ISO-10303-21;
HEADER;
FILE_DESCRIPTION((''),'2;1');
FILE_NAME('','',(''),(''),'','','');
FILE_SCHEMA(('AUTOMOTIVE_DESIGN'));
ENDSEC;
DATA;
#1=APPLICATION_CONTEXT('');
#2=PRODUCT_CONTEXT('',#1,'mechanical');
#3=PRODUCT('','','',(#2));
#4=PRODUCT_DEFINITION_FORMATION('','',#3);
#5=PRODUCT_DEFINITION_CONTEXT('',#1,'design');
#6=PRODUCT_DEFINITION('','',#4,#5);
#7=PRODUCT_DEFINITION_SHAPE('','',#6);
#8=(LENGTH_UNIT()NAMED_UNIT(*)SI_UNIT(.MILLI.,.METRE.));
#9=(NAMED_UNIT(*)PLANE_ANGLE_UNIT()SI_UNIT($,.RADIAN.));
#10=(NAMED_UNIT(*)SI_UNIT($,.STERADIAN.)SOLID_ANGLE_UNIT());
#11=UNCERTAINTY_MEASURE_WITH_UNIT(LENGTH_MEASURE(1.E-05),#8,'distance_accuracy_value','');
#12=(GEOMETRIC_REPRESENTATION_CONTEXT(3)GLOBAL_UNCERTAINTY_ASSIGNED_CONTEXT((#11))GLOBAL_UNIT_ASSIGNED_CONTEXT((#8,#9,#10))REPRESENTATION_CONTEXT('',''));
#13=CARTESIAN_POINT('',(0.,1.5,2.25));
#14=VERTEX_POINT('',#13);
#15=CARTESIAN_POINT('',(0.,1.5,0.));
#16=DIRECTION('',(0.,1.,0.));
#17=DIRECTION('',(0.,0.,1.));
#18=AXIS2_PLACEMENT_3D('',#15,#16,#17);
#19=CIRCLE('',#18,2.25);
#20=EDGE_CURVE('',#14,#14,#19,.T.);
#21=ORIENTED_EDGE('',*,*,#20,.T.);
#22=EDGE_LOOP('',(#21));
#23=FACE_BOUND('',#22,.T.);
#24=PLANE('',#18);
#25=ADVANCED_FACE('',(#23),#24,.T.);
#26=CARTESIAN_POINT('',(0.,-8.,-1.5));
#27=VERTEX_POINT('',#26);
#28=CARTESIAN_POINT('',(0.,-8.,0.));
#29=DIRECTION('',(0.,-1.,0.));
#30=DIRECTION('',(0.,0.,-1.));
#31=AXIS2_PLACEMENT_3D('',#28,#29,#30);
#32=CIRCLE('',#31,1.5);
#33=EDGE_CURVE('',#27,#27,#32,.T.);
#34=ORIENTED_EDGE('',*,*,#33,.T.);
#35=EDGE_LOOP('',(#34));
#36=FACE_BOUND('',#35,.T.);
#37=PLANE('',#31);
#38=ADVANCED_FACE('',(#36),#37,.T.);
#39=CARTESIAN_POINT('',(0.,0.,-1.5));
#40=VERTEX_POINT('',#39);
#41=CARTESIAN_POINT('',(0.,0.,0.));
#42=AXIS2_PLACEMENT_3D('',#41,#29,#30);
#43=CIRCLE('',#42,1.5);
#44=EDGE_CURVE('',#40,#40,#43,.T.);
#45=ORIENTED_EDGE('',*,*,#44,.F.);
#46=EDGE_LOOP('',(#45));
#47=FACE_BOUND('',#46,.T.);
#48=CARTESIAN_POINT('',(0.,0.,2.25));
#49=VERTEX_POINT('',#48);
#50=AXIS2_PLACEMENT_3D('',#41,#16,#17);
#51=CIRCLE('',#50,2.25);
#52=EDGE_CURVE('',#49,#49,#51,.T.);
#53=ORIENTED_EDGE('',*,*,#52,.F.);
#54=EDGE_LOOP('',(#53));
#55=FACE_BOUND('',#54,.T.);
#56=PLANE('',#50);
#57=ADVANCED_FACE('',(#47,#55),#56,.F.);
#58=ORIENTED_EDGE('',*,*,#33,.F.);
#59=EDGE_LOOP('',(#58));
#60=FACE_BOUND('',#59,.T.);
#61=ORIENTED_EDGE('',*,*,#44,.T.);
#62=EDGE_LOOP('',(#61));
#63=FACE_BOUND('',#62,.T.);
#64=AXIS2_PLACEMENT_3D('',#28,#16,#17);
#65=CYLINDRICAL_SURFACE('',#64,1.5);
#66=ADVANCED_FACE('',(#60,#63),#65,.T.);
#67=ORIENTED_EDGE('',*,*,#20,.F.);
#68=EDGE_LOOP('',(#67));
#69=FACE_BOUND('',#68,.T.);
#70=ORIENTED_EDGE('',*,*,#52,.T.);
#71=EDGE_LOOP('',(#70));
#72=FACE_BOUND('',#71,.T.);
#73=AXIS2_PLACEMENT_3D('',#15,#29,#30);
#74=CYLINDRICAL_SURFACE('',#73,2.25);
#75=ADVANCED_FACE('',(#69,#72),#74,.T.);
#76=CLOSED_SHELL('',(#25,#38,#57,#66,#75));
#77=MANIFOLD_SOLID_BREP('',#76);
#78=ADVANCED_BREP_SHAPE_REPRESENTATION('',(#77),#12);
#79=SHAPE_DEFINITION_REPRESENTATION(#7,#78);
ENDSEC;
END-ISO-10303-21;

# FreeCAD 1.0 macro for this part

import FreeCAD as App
import Part
import Sketcher
Q = App.Units.Quantity

doc = App.newDocument("Part")
body = doc.addObject("PartDesign::Body", "Body")

# Sketch on XZ plane
sketch1 = body.newObject("Sketcher::SketchObject", "Sketch")
sketch1.AttachmentSupport = (doc.getObject("XZ_Plane"), [""])
sketch1.MapMode = "FlatFace"
sketch1.addGeometry(Part.Circle(App.Vector(0, 0, 0), App.Vector(0, 0, 1), 2.25), False)
sketch1.addConstraint([
    Sketcher.Constraint("Coincident", 0, 3, -1, 1),
    Sketcher.Constraint("Diameter", 0, Q("4.5 mm")),
])
pad1 = body.newObject("PartDesign::Pad", "Pad")
pad1.Profile = sketch1
pad1.Length = 1.5
pad1.Reversed = True

# Sketch on XZ plane
sketch2 = body.newObject("Sketcher::SketchObject", "Sketch001")
sketch2.AttachmentSupport = (doc.getObject("XZ_Plane"), [""])
sketch2.MapMode = "FlatFace"
sketch2.addGeometry(Part.Circle(App.Vector(0, 0, 0), App.Vector(0, 0, 1), 1.5), False)
sketch2.addConstraint([
    Sketcher.Constraint("Coincident", 0, 3, -1, 1),
    Sketcher.Constraint("Diameter", 0, Q("3 mm")),
])
pad2 = body.newObject("PartDesign::Pad", "Pad001")
pad2.Profile = sketch2
pad2.Length = 8

doc.recompute()
